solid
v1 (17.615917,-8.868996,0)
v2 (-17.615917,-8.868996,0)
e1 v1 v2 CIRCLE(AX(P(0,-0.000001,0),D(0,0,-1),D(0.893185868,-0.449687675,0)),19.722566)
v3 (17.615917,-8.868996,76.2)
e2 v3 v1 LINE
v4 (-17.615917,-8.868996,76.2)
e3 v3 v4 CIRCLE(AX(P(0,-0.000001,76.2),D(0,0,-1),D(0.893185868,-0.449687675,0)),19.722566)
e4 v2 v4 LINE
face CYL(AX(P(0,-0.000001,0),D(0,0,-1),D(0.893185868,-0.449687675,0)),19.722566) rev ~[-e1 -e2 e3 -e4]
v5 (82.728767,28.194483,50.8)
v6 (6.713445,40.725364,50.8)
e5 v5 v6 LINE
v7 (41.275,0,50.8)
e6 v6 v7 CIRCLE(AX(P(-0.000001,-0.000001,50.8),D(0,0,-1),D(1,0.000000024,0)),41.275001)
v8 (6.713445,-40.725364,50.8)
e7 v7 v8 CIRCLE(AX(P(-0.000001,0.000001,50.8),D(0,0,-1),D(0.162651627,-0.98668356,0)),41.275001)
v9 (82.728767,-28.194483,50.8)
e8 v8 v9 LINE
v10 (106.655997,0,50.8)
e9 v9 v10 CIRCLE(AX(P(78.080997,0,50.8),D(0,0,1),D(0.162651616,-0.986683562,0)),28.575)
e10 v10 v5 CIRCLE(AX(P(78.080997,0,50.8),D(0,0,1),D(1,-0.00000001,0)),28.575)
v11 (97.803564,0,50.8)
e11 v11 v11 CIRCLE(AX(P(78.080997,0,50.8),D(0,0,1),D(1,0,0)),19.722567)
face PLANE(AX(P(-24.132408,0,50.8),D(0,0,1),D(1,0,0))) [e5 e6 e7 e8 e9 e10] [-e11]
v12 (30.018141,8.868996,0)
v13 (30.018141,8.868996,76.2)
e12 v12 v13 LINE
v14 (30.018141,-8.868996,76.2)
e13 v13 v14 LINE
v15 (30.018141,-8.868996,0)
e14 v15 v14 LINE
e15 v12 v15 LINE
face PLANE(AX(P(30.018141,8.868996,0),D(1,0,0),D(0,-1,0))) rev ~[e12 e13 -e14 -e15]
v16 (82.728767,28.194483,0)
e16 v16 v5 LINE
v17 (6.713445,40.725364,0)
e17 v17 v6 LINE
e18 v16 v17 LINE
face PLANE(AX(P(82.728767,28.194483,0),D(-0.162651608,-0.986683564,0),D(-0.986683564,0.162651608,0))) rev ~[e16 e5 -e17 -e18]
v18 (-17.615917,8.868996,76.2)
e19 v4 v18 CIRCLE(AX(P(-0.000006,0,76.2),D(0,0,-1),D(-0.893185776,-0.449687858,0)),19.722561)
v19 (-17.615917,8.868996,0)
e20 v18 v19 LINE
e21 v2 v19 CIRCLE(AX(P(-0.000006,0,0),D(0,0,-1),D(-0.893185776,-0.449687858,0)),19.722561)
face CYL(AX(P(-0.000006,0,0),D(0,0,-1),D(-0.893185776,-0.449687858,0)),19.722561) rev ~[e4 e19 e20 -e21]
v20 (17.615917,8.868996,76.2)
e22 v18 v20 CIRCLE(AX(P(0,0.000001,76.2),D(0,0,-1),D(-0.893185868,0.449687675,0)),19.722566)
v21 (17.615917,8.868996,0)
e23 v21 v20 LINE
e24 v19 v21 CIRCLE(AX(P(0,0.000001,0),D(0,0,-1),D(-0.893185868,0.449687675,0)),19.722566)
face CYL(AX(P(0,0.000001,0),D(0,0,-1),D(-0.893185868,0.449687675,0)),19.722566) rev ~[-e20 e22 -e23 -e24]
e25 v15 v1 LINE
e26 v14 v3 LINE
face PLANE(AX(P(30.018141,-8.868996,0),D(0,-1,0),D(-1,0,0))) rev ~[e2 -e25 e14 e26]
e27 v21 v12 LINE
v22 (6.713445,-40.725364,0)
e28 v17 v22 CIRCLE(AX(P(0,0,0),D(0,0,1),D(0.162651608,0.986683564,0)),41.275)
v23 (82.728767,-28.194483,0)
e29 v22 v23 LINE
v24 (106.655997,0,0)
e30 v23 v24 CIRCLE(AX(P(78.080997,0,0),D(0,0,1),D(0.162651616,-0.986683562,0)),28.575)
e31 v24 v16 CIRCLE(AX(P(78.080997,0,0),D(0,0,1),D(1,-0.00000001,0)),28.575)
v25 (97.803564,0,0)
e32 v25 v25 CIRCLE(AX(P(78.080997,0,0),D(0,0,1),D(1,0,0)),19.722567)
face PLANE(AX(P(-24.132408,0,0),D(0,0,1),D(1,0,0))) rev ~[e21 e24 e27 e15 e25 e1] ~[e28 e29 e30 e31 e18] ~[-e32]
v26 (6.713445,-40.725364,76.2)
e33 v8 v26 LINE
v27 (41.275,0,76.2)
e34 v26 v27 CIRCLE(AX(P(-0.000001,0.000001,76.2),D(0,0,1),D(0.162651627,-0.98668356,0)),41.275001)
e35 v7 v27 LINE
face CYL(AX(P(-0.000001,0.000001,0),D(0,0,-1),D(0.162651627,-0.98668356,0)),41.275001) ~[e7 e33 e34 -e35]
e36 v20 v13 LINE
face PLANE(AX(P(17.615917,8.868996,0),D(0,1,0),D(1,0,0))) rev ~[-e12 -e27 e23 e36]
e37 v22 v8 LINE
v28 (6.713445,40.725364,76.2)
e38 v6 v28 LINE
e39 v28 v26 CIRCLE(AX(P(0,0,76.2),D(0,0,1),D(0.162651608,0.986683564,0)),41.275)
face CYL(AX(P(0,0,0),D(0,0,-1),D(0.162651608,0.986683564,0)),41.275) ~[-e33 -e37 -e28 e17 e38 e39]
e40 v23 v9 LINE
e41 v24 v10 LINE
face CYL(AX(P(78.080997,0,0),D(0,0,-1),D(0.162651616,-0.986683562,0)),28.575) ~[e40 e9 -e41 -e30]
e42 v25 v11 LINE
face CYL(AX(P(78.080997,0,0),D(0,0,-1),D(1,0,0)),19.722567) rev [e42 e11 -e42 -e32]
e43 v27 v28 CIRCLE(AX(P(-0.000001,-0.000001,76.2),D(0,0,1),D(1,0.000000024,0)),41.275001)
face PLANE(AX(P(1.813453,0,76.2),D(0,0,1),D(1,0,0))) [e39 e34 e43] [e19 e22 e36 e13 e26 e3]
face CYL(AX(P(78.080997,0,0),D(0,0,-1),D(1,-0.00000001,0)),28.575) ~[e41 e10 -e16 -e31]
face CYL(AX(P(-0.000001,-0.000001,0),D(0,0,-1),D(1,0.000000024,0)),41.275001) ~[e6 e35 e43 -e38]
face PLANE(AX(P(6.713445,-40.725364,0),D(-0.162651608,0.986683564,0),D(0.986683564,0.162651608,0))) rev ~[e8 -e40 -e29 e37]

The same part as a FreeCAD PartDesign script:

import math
import FreeCAD as App
import Part
import Sketcher
Q = App.Units.Quantity

doc = App.newDocument("Part")
body = doc.addObject("PartDesign::Body", "Body")

# Sketch on XY plane
sketch1 = doc.addObject("Sketcher::SketchObject", "Sketch")
body.addObject(sketch1)
sketch1.AttachmentSupport = (doc.XY_Plane, [""])
sketch1.MapMode = "FlatFace"
sketch1.addGeometry(Part.ArcOfCircle(Part.Circle(App.Vector(0, 0, 0), App.Vector(0, 0, 1), 41), math.radians(81), math.radians(279)), False)
sketch1.addGeometry(Part.LineSegment(App.Vector(7, -41, 0), App.Vector(83, -28, 0)), False)
sketch1.addGeometry(Part.ArcOfCircle(Part.Circle(App.Vector(78, 0, 0), App.Vector(0, 0, 1), 29), math.radians(-81), math.radians(0)), False)
sketch1.addGeometry(Part.ArcOfCircle(Part.Circle(App.Vector(78, 0, 0), App.Vector(0, 0, 1), 29), math.radians(0), math.radians(81)), False)
sketch1.addGeometry(Part.LineSegment(App.Vector(83, 28, 0), App.Vector(7, 41, 0)), False)
sketch1.addGeometry(Part.LineSegment(App.Vector(-30, 9, 0), App.Vector(-18, 9, 0)), False)
sketch1.addGeometry(Part.ArcOfCircle(Part.Circle(App.Vector(0, 0, 0), App.Vector(0, 0, 1), 20), math.radians(27), math.radians(153)), False)
sketch1.addGeometry(Part.LineSegment(App.Vector(18, 9, 0), App.Vector(30, 9, 0)), False)
sketch1.addGeometry(Part.LineSegment(App.Vector(30, 9, 0), App.Vector(30, -9, 0)), False)
sketch1.addGeometry(Part.LineSegment(App.Vector(30, -9, 0), App.Vector(18, -9, 0)), False)
sketch1.addGeometry(Part.ArcOfCircle(Part.Circle(App.Vector(0, 0, 0), App.Vector(0, 0, 1), 20), math.radians(-153), math.radians(-27)), False)
sketch1.addGeometry(Part.LineSegment(App.Vector(-18, -9, 0), App.Vector(-30, -9, 0)), False)
sketch1.addGeometry(Part.LineSegment(App.Vector(-30, -9, 0), App.Vector(-30, 9, 0)), False)
sketch1.addGeometry(Part.Circle(App.Vector(78, 0, 0), App.Vector(0, 0, 1), 20), False)
sketch1.addConstraint(Sketcher.Constraint("Tangent", 0, 2, 1, 1))
sketch1.addConstraint(Sketcher.Constraint("Tangent", 1, 2, 2, 1))
sketch1.addConstraint(Sketcher.Constraint("Tangent", 2, 2, 3, 1))
sketch1.addConstraint(Sketcher.Constraint("Tangent", 3, 2, 4, 1))
sketch1.addConstraint(Sketcher.Constraint("Tangent", 4, 2, 0, 1))
sketch1.addConstraint(Sketcher.Constraint("Coincident", 5, 2, 6, 2))
sketch1.addConstraint(Sketcher.Constraint("Coincident", 6, 1, 7, 1))
sketch1.addConstraint(Sketcher.Constraint("Coincident", 7, 2, 8, 1))
sketch1.addConstraint(Sketcher.Constraint("Coincident", 8, 2, 9, 1))
sketch1.addConstraint(Sketcher.Constraint("Coincident", 9, 2, 10, 2))
sketch1.addConstraint(Sketcher.Constraint("Coincident", 10, 1, 11, 1))
sketch1.addConstraint(Sketcher.Constraint("Coincident", 11, 2, 12, 1))
sketch1.addConstraint(Sketcher.Constraint("Coincident", 12, 2, 5, 1))
sketch1.addConstraint(Sketcher.Constraint("Horizontal", 5))
sketch1.addConstraint(Sketcher.Constraint("Horizontal", 7))
sketch1.addConstraint(Sketcher.Constraint("Vertical", 8))
sketch1.addConstraint(Sketcher.Constraint("Horizontal", 9))
sketch1.addConstraint(Sketcher.Constraint("Horizontal", 11))
sketch1.addConstraint(Sketcher.Constraint("Vertical", 12))
sketch1.addConstraint(Sketcher.Constraint("Coincident", 0, 3, -1, 1))
sketch1.addConstraint(Sketcher.Constraint("Coincident", 6, 3, -1, 1))
sketch1.addConstraint(Sketcher.Constraint("Coincident", 10, 3, -1, 1))
sketch1.addConstraint(Sketcher.Constraint("Coincident", 13, 3, 2, 3))
sketch1.addConstraint(Sketcher.Constraint("Equal", 2, 3))
sketch1.addConstraint(Sketcher.Constraint("Equal", 6, 10))
sketch1.addConstraint(Sketcher.Constraint("Equal", 10, 13))
sketch1.addConstraint(Sketcher.Constraint("Symmetric", 7, 2, 11, 2, -1, 1))
sketch1.addConstraint(Sketcher.Constraint("PointOnObject", 2, 3, -1))
sketch1.addConstraint(Sketcher.Constraint("PointOnObject", 2, 2, -1))
sketch1.addConstraint(Sketcher.Constraint("Horizontal", 5, 2, 6, 1))
sketch1.addConstraint(Sketcher.Constraint("Horizontal", 9, 2, 10, 1))
sketch1.addConstraint(Sketcher.Constraint("Radius", 0, Q("1.625 in")))
sketch1.addConstraint(Sketcher.Constraint("Radius", 2, Q("1.125 in")))
sketch1.addConstraint(Sketcher.Constraint("Diameter", 13, 39.445134))
sketch1.addConstraint(Sketcher.Constraint("DistanceY", 8, 2, 8, 1, 17.737992))
sketch1.addConstraint(Sketcher.Constraint("DistanceX", 5, 1, 5, 2, 12.402224))
sketch1.addConstraint(Sketcher.Constraint("DistanceX", 0, 2, 13, 3, 71.367552))
pad1 = doc.addObject("PartDesign::Pad", "Pad")
body.addObject(pad1)
pad1.Profile = sketch1
pad1.Length = Q("2 in")

# Sketch on XY plane
sketch2 = doc.addObject("Sketcher::SketchObject", "Sketch001")
body.addObject(sketch2)
sketch2.AttachmentSupport = (doc.XY_Plane, [""])
sketch2.MapMode = "FlatFace"
sketch2.addGeometry(Part.ArcOfCircle(Part.Circle(App.Vector(0, 0, 0), App.Vector(0, 0, 1), 41), math.radians(-81), math.radians(0)), False)
sketch2.addGeometry(Part.ArcOfCircle(Part.Circle(App.Vector(0, 0, 0), App.Vector(0, 0, 1), 41), math.radians(0), math.radians(81)), False)
sketch2.addGeometry(Part.ArcOfCircle(Part.Circle(App.Vector(0, 0, 0), App.Vector(0, 0, 1), 41), math.radians(81), math.radians(279)), False)
sketch2.addGeometry(Part.ArcOfCircle(Part.Circle(App.Vector(0, 0, 0), App.Vector(0, 0, 1), 20), math.radians(-153), math.radians(-27)), False)
sketch2.addGeometry(Part.ArcOfCircle(Part.Circle(App.Vector(0, 0, 0), App.Vector(0, 0, 1), 20), math.radians(153), math.radians(207)), False)
sketch2.addGeometry(Part.ArcOfCircle(Part.Circle(App.Vector(0, 0, 0), App.Vector(0, 0, 1), 20), math.radians(27), math.radians(153)), False)
sketch2.addGeometry(Part.LineSegment(App.Vector(18, 9, 0), App.Vector(30, 9, 0)), False)
sketch2.addGeometry(Part.LineSegment(App.Vector(30, 9, 0), App.Vector(30, -9, 0)), False)
sketch2.addGeometry(Part.LineSegment(App.Vector(30, -9, 0), App.Vector(18, -9, 0)), False)
sketch2.addConstraint(Sketcher.Constraint("Tangent", 0, 2, 1, 1))
sketch2.addConstraint(Sketcher.Constraint("Tangent", 1, 2, 2, 1))
sketch2.addConstraint(Sketcher.Constraint("Tangent", 2, 2, 0, 1))
sketch2.addConstraint(Sketcher.Constraint("Tangent", 3, 1, 4, 2))
sketch2.addConstraint(Sketcher.Constraint("Tangent", 4, 1, 5, 2))
sketch2.addConstraint(Sketcher.Constraint("Coincident", 5, 1, 6, 1))
sketch2.addConstraint(Sketcher.Constraint("Coincident", 6, 2, 7, 1))
sketch2.addConstraint(Sketcher.Constraint("Coincident", 7, 2, 8, 1))
sketch2.addConstraint(Sketcher.Constraint("Coincident", 8, 2, 3, 2))
sketch2.addConstraint(Sketcher.Constraint("Horizontal", 6))
sketch2.addConstraint(Sketcher.Constraint("Vertical", 7))
sketch2.addConstraint(Sketcher.Constraint("Horizontal", 8))
sketch2.addConstraint(Sketcher.Constraint("Coincident", 0, 3, -1, 1))
sketch2.addConstraint(Sketcher.Constraint("Coincident", 3, 3, -1, 1))
sketch2.addConstraint(Sketcher.Constraint("Coincident", 5, 3, -1, 1))
sketch2.addConstraint(Sketcher.Constraint("PointOnObject", 0, 2, -1))
sketch2.addConstraint(Sketcher.Constraint("Horizontal", 4, 1, 5, 1))
sketch2.addConstraint(Sketcher.Constraint("Horizontal", 3, 1, 7, 2))
sketch2.addConstraint(Sketcher.Constraint("Vertical", 1, 2, 2, 2))
sketch2.addConstraint(Sketcher.Constraint("Vertical", 3, 1, 4, 1))
sketch2.addConstraint(Sketcher.Constraint("Radius", 0, Q("1.625 in")))
sketch2.addConstraint(Sketcher.Constraint("Radius", 4, 19.722561))
sketch2.addConstraint(Sketcher.Constraint("DistanceY", 7, 2, 7, 1, 17.737992))
sketch2.addConstraint(Sketcher.Constraint("DistanceX", 6, 1, 6, 2, 12.402224))
sketch2.addConstraint(Sketcher.Constraint("DistanceX", 4, 3, 1, 2, 6.713451))
pad2 = doc.addObject("PartDesign::Pad", "Pad001")
body.addObject(pad2)
pad2.Profile = sketch2
pad2.Length = Q("3 in")

doc.recompute()
